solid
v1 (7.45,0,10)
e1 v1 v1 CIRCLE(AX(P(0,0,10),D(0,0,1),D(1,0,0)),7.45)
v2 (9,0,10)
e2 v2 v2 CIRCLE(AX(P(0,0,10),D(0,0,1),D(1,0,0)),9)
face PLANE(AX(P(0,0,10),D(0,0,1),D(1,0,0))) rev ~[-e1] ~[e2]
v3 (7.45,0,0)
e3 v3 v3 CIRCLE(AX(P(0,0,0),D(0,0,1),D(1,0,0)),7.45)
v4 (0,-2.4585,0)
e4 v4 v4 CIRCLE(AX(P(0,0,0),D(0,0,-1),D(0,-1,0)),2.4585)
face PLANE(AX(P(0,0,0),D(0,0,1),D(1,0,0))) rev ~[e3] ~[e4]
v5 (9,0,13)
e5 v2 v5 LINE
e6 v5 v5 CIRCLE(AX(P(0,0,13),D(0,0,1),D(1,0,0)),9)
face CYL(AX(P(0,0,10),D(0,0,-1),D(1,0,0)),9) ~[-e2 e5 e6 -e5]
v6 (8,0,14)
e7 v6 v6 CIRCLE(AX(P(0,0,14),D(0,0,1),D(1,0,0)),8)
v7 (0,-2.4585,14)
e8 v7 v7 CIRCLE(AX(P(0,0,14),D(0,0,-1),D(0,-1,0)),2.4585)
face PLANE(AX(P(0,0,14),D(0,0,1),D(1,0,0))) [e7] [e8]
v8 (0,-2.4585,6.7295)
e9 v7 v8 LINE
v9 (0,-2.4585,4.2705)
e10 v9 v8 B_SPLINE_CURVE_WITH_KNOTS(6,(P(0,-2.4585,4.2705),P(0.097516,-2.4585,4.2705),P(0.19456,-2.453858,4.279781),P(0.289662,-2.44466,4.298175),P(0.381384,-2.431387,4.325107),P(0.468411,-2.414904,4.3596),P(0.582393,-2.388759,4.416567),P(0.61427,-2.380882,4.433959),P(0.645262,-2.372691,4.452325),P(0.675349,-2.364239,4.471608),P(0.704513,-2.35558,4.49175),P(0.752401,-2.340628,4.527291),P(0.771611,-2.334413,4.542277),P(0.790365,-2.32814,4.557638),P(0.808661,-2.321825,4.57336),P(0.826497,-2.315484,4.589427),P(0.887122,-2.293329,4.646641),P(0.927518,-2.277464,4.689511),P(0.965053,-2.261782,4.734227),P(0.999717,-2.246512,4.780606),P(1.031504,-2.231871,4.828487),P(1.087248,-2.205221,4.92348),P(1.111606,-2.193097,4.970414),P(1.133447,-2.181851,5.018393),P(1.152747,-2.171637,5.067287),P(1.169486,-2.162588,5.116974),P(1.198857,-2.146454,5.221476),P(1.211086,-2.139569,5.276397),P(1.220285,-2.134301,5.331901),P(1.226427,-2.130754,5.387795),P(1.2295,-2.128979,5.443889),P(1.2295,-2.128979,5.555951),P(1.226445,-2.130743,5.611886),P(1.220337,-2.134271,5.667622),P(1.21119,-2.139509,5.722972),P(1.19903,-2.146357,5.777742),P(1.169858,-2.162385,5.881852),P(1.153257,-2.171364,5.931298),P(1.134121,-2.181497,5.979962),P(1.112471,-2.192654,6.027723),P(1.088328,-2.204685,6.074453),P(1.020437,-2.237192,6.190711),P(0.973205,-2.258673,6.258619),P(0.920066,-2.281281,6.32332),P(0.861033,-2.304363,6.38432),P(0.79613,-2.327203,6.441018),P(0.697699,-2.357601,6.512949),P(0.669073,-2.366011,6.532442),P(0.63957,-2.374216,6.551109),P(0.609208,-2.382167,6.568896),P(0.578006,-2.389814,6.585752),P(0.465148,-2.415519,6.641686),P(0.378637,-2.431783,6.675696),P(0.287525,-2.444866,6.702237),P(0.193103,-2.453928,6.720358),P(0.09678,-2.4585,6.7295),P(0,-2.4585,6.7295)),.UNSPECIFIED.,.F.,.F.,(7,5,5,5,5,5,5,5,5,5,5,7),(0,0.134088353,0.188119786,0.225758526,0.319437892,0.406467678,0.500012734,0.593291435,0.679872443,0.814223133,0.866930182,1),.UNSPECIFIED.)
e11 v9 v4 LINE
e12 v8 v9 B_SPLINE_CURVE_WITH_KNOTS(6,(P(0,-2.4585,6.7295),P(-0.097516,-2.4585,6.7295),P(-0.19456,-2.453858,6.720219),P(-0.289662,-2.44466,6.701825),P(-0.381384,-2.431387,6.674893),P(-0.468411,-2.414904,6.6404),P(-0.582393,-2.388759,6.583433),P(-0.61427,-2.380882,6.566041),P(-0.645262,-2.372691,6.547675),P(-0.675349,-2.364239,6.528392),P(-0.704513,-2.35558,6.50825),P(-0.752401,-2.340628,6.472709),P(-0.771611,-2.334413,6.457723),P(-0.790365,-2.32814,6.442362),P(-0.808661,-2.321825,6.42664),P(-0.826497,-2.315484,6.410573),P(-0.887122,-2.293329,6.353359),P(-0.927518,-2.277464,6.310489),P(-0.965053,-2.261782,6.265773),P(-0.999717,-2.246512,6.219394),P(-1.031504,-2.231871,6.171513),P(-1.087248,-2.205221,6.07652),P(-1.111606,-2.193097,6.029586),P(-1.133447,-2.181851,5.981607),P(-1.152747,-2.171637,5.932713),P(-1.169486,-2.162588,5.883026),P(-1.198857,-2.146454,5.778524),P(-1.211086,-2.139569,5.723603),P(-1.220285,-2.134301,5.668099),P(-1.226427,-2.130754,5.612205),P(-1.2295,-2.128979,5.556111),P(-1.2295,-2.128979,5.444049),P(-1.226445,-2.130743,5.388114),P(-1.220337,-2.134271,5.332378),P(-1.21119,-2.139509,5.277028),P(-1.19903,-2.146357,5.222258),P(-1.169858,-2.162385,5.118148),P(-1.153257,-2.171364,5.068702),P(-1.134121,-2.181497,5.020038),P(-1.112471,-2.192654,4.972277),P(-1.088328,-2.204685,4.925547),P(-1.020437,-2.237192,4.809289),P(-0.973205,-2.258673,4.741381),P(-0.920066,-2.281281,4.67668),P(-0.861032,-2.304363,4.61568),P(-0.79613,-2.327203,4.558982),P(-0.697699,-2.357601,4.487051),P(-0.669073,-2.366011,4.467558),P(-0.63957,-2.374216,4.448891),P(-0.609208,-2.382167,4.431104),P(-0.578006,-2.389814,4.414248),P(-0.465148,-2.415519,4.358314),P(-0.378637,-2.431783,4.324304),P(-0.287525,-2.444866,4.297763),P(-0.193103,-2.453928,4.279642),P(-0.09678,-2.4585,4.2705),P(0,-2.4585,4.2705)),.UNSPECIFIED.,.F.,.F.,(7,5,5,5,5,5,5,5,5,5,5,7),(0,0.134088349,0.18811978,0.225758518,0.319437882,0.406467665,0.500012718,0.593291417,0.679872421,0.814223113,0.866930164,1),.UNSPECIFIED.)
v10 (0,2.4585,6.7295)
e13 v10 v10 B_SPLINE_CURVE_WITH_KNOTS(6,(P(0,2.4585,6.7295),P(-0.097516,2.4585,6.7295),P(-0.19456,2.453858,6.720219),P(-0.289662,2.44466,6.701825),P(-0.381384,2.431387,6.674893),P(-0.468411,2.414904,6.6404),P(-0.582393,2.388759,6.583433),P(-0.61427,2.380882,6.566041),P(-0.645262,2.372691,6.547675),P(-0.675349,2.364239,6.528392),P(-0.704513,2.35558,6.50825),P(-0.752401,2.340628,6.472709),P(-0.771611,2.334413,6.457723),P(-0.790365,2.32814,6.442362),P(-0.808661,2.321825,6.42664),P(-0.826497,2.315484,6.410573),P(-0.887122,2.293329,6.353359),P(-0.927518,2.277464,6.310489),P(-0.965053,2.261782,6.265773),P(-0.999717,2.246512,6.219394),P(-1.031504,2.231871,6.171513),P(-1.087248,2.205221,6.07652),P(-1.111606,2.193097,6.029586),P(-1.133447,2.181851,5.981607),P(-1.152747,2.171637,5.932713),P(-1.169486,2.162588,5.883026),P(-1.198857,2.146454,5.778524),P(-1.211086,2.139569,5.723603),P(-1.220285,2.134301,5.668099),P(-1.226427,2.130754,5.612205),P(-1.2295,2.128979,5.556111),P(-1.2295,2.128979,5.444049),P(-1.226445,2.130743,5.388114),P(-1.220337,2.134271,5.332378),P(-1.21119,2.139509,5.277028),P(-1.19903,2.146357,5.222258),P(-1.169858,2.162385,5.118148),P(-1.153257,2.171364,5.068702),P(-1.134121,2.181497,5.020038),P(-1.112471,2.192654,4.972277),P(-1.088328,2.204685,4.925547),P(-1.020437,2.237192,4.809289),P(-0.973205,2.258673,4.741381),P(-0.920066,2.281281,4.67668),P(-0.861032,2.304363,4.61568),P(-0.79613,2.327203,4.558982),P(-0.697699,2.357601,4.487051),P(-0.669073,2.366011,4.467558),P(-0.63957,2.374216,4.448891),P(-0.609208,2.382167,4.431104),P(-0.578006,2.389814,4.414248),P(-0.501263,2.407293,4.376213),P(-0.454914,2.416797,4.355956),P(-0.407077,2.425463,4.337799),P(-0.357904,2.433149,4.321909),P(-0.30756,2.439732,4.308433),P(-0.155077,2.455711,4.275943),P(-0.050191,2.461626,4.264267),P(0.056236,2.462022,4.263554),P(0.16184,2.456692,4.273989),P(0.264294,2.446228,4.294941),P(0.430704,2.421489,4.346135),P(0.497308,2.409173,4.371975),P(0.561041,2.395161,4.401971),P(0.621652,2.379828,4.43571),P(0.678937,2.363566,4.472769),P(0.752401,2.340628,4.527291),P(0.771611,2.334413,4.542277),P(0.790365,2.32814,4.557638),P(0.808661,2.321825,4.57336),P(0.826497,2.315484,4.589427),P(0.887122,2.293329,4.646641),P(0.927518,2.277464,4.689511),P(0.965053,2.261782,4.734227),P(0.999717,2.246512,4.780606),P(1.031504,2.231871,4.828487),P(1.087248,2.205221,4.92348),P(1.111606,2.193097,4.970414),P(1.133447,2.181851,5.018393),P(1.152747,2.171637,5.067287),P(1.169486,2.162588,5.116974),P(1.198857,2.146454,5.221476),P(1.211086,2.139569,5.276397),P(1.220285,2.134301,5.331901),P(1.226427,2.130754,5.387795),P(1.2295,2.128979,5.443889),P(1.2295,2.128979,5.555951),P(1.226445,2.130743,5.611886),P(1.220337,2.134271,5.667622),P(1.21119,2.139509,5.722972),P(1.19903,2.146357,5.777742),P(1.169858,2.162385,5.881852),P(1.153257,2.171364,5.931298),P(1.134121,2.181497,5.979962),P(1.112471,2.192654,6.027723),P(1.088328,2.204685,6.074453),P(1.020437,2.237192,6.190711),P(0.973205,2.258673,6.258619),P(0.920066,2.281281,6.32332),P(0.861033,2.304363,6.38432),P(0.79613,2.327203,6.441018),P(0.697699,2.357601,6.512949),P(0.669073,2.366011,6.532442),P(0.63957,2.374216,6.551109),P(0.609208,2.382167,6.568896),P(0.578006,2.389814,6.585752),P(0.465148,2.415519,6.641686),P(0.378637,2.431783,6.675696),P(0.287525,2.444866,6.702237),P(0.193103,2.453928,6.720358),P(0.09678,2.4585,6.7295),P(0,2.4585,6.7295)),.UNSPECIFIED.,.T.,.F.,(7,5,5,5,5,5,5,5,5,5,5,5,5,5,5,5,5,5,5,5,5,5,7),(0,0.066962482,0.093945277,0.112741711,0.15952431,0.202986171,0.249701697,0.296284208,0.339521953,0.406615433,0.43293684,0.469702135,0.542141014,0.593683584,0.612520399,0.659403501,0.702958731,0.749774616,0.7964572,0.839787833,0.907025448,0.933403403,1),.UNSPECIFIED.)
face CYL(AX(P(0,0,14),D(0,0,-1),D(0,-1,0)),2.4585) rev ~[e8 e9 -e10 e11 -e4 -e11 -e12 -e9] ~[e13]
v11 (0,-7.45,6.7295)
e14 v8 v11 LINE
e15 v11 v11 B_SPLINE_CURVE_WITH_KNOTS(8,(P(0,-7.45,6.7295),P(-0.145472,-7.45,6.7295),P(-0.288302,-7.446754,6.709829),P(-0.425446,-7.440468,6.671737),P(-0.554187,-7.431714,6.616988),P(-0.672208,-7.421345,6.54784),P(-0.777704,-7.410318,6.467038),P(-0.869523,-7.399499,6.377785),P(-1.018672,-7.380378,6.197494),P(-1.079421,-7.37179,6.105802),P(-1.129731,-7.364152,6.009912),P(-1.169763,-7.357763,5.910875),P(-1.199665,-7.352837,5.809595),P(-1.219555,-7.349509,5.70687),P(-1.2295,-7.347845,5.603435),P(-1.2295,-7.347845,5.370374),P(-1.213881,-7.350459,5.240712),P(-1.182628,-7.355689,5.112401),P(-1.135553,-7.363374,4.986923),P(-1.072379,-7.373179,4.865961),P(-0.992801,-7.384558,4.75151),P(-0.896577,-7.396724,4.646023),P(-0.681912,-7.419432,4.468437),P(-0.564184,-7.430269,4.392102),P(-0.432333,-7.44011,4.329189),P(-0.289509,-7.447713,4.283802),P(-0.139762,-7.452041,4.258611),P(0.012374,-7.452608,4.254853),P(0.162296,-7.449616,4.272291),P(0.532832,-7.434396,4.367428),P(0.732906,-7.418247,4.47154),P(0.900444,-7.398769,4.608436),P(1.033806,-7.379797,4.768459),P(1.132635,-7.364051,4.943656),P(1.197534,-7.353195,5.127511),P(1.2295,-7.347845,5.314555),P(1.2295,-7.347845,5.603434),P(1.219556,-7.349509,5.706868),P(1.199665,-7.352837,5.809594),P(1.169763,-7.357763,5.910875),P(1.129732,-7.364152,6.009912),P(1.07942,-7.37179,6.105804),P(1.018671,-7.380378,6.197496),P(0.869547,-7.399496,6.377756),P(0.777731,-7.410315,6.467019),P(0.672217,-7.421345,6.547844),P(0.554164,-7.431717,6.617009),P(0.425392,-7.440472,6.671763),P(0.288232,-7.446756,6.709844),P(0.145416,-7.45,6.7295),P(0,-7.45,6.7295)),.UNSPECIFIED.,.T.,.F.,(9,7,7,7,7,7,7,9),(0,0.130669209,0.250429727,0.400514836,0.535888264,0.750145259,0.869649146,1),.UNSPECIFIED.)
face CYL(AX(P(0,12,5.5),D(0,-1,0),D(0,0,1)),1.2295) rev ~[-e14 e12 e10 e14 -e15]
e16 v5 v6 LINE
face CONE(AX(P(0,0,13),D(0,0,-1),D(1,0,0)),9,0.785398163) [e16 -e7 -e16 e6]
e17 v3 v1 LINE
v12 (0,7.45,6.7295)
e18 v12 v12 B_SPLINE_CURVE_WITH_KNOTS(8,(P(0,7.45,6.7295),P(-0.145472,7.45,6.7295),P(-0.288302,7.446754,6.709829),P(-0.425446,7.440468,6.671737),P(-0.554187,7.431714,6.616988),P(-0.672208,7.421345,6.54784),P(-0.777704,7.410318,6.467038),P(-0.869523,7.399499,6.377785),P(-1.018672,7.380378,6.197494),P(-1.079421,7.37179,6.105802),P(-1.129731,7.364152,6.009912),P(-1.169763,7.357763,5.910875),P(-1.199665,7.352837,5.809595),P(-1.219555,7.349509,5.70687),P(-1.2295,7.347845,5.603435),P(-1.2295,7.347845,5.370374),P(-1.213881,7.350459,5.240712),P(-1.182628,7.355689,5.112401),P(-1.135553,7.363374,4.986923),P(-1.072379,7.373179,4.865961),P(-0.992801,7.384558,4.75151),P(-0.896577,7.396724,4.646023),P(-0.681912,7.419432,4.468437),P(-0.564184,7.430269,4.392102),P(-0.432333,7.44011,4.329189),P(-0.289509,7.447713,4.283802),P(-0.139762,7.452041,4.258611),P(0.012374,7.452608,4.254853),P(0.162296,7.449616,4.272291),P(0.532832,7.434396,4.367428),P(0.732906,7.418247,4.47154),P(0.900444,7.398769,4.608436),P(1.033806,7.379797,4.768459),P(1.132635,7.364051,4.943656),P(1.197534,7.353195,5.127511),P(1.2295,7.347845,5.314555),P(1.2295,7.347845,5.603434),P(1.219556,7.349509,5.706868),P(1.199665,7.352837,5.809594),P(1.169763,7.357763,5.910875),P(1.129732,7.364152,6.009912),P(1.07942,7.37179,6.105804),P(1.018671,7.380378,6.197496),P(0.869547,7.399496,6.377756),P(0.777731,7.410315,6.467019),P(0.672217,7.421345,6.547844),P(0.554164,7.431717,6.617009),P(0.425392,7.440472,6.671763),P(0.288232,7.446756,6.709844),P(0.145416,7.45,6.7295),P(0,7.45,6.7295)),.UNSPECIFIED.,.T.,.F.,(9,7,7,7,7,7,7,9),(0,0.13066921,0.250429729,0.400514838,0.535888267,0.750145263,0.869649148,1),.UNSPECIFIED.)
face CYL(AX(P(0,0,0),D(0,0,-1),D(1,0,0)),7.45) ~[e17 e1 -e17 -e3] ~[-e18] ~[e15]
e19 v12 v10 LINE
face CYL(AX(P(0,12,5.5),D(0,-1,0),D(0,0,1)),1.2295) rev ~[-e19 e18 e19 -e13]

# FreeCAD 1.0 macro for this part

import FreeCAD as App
import Part
import Sketcher

V = App.Vector
Q = App.Units.Quantity


def edges_at(feature, points):
    """Names of the edges that pass closest to the given points."""
    edges = feature.Shape.Edges
    near = lambda p: min(range(len(edges)), key=lambda i: edges[i].distToShape(Part.Vertex(*p))[0])
    return sorted({f"Edge{near(p) + 1}" for p in points})

doc = App.newDocument("Part")
body = doc.addObject("PartDesign::Body", "Body")

# Sketch on XY plane
sketch1 = body.newObject("Sketcher::SketchObject", "Sketch")
sketch1.AttachmentSupport = (doc.getObject("XY_Plane"), [""])
sketch1.MapMode = "FlatFace"
sketch1.addGeometry(Part.Circle(V(0, 0, 0), V(0, 0, 1), 7), False)
sketch1.addConstraint([
    Sketcher.Constraint("Coincident", 0, 3, -1, 1),
    Sketcher.Constraint("Diameter", 0, Q("14.9 mm")),
])
pad1 = body.newObject("PartDesign::Pad", "Pad")
pad1.Profile = sketch1
pad1.Length = 10

# Sketch on XY plane
sketch2 = body.newObject("Sketcher::SketchObject", "Sketch001")
sketch2.AttachmentSupport = (doc.getObject("XY_Plane"), [""])
sketch2.MapMode = "FlatFace"
sketch2.AttachmentOffset = App.Placement(V(0, 0, 10), App.Rotation())
sketch2.addGeometry(Part.Circle(V(0, 0, 0), V(0, 0, 1), 9), False)
sketch2.addConstraint([
    Sketcher.Constraint("Coincident", 0, 3, -1, 1),
    Sketcher.Constraint("Diameter", 0, Q("18 mm")),
])
pad2 = body.newObject("PartDesign::Pad", "Pad001")
pad2.Profile = sketch2
pad2.Length = 4

# Sketch on XY plane
sketch3 = body.newObject("Sketcher::SketchObject", "Sketch002")
sketch3.AttachmentSupport = (doc.getObject("XY_Plane"), [""])
sketch3.MapMode = "FlatFace"
sketch3.AttachmentOffset = App.Placement(V(0, 0, 14), App.Rotation())
sketch3.addGeometry(Part.Circle(V(0, 0, 0), V(0, 0, 1), 2.5), False)
sketch3.addConstraint([
    Sketcher.Constraint("Coincident", 0, 3, -1, 1),
    Sketcher.Constraint("Diameter", 0, Q("4.917 mm")),
])
doc.recompute()
hole = body.newObject("PartDesign::Hole", "Hole")
hole.Profile = sketch3
hole.ThreadType = "None"
hole.Diameter = 4.917
hole.DepthType = "ThroughAll"
doc.recompute()

chamfer = body.newObject("PartDesign::Chamfer", "Chamfer")
chamfer.Base = (hole, edges_at(hole, [(-9, 0, 14)]))
chamfer.Size = 1

# Sketch on XZ plane
sketch4 = body.newObject("Sketcher::SketchObject", "Sketch003")
sketch4.AttachmentSupport = (doc.getObject("XZ_Plane"), [""])
sketch4.MapMode = "FlatFace"
sketch4.AttachmentOffset = App.Placement(V(0, 0, -12), App.Rotation())
sketch4.addGeometry(Part.Circle(V(0, 5.5, 0), V(0, 0, 1), 1.2), False)
sketch4.addConstraint([
    Sketcher.Constraint("PointOnObject", 0, 3, -2),
    Sketcher.Constraint("Diameter", 0, Q("2.459 mm")),
    Sketcher.Constraint("DistanceY", -1, 1, 0, 3, Q("5.5 mm")),
])
doc.recompute()
hole2 = body.newObject("PartDesign::Hole", "Hole001")
hole2.Profile = sketch4
hole2.ThreadType = "None"
hole2.Diameter = 2.459
hole2.DepthType = "ThroughAll"
hole2.Reversed = True

doc.recompute()
